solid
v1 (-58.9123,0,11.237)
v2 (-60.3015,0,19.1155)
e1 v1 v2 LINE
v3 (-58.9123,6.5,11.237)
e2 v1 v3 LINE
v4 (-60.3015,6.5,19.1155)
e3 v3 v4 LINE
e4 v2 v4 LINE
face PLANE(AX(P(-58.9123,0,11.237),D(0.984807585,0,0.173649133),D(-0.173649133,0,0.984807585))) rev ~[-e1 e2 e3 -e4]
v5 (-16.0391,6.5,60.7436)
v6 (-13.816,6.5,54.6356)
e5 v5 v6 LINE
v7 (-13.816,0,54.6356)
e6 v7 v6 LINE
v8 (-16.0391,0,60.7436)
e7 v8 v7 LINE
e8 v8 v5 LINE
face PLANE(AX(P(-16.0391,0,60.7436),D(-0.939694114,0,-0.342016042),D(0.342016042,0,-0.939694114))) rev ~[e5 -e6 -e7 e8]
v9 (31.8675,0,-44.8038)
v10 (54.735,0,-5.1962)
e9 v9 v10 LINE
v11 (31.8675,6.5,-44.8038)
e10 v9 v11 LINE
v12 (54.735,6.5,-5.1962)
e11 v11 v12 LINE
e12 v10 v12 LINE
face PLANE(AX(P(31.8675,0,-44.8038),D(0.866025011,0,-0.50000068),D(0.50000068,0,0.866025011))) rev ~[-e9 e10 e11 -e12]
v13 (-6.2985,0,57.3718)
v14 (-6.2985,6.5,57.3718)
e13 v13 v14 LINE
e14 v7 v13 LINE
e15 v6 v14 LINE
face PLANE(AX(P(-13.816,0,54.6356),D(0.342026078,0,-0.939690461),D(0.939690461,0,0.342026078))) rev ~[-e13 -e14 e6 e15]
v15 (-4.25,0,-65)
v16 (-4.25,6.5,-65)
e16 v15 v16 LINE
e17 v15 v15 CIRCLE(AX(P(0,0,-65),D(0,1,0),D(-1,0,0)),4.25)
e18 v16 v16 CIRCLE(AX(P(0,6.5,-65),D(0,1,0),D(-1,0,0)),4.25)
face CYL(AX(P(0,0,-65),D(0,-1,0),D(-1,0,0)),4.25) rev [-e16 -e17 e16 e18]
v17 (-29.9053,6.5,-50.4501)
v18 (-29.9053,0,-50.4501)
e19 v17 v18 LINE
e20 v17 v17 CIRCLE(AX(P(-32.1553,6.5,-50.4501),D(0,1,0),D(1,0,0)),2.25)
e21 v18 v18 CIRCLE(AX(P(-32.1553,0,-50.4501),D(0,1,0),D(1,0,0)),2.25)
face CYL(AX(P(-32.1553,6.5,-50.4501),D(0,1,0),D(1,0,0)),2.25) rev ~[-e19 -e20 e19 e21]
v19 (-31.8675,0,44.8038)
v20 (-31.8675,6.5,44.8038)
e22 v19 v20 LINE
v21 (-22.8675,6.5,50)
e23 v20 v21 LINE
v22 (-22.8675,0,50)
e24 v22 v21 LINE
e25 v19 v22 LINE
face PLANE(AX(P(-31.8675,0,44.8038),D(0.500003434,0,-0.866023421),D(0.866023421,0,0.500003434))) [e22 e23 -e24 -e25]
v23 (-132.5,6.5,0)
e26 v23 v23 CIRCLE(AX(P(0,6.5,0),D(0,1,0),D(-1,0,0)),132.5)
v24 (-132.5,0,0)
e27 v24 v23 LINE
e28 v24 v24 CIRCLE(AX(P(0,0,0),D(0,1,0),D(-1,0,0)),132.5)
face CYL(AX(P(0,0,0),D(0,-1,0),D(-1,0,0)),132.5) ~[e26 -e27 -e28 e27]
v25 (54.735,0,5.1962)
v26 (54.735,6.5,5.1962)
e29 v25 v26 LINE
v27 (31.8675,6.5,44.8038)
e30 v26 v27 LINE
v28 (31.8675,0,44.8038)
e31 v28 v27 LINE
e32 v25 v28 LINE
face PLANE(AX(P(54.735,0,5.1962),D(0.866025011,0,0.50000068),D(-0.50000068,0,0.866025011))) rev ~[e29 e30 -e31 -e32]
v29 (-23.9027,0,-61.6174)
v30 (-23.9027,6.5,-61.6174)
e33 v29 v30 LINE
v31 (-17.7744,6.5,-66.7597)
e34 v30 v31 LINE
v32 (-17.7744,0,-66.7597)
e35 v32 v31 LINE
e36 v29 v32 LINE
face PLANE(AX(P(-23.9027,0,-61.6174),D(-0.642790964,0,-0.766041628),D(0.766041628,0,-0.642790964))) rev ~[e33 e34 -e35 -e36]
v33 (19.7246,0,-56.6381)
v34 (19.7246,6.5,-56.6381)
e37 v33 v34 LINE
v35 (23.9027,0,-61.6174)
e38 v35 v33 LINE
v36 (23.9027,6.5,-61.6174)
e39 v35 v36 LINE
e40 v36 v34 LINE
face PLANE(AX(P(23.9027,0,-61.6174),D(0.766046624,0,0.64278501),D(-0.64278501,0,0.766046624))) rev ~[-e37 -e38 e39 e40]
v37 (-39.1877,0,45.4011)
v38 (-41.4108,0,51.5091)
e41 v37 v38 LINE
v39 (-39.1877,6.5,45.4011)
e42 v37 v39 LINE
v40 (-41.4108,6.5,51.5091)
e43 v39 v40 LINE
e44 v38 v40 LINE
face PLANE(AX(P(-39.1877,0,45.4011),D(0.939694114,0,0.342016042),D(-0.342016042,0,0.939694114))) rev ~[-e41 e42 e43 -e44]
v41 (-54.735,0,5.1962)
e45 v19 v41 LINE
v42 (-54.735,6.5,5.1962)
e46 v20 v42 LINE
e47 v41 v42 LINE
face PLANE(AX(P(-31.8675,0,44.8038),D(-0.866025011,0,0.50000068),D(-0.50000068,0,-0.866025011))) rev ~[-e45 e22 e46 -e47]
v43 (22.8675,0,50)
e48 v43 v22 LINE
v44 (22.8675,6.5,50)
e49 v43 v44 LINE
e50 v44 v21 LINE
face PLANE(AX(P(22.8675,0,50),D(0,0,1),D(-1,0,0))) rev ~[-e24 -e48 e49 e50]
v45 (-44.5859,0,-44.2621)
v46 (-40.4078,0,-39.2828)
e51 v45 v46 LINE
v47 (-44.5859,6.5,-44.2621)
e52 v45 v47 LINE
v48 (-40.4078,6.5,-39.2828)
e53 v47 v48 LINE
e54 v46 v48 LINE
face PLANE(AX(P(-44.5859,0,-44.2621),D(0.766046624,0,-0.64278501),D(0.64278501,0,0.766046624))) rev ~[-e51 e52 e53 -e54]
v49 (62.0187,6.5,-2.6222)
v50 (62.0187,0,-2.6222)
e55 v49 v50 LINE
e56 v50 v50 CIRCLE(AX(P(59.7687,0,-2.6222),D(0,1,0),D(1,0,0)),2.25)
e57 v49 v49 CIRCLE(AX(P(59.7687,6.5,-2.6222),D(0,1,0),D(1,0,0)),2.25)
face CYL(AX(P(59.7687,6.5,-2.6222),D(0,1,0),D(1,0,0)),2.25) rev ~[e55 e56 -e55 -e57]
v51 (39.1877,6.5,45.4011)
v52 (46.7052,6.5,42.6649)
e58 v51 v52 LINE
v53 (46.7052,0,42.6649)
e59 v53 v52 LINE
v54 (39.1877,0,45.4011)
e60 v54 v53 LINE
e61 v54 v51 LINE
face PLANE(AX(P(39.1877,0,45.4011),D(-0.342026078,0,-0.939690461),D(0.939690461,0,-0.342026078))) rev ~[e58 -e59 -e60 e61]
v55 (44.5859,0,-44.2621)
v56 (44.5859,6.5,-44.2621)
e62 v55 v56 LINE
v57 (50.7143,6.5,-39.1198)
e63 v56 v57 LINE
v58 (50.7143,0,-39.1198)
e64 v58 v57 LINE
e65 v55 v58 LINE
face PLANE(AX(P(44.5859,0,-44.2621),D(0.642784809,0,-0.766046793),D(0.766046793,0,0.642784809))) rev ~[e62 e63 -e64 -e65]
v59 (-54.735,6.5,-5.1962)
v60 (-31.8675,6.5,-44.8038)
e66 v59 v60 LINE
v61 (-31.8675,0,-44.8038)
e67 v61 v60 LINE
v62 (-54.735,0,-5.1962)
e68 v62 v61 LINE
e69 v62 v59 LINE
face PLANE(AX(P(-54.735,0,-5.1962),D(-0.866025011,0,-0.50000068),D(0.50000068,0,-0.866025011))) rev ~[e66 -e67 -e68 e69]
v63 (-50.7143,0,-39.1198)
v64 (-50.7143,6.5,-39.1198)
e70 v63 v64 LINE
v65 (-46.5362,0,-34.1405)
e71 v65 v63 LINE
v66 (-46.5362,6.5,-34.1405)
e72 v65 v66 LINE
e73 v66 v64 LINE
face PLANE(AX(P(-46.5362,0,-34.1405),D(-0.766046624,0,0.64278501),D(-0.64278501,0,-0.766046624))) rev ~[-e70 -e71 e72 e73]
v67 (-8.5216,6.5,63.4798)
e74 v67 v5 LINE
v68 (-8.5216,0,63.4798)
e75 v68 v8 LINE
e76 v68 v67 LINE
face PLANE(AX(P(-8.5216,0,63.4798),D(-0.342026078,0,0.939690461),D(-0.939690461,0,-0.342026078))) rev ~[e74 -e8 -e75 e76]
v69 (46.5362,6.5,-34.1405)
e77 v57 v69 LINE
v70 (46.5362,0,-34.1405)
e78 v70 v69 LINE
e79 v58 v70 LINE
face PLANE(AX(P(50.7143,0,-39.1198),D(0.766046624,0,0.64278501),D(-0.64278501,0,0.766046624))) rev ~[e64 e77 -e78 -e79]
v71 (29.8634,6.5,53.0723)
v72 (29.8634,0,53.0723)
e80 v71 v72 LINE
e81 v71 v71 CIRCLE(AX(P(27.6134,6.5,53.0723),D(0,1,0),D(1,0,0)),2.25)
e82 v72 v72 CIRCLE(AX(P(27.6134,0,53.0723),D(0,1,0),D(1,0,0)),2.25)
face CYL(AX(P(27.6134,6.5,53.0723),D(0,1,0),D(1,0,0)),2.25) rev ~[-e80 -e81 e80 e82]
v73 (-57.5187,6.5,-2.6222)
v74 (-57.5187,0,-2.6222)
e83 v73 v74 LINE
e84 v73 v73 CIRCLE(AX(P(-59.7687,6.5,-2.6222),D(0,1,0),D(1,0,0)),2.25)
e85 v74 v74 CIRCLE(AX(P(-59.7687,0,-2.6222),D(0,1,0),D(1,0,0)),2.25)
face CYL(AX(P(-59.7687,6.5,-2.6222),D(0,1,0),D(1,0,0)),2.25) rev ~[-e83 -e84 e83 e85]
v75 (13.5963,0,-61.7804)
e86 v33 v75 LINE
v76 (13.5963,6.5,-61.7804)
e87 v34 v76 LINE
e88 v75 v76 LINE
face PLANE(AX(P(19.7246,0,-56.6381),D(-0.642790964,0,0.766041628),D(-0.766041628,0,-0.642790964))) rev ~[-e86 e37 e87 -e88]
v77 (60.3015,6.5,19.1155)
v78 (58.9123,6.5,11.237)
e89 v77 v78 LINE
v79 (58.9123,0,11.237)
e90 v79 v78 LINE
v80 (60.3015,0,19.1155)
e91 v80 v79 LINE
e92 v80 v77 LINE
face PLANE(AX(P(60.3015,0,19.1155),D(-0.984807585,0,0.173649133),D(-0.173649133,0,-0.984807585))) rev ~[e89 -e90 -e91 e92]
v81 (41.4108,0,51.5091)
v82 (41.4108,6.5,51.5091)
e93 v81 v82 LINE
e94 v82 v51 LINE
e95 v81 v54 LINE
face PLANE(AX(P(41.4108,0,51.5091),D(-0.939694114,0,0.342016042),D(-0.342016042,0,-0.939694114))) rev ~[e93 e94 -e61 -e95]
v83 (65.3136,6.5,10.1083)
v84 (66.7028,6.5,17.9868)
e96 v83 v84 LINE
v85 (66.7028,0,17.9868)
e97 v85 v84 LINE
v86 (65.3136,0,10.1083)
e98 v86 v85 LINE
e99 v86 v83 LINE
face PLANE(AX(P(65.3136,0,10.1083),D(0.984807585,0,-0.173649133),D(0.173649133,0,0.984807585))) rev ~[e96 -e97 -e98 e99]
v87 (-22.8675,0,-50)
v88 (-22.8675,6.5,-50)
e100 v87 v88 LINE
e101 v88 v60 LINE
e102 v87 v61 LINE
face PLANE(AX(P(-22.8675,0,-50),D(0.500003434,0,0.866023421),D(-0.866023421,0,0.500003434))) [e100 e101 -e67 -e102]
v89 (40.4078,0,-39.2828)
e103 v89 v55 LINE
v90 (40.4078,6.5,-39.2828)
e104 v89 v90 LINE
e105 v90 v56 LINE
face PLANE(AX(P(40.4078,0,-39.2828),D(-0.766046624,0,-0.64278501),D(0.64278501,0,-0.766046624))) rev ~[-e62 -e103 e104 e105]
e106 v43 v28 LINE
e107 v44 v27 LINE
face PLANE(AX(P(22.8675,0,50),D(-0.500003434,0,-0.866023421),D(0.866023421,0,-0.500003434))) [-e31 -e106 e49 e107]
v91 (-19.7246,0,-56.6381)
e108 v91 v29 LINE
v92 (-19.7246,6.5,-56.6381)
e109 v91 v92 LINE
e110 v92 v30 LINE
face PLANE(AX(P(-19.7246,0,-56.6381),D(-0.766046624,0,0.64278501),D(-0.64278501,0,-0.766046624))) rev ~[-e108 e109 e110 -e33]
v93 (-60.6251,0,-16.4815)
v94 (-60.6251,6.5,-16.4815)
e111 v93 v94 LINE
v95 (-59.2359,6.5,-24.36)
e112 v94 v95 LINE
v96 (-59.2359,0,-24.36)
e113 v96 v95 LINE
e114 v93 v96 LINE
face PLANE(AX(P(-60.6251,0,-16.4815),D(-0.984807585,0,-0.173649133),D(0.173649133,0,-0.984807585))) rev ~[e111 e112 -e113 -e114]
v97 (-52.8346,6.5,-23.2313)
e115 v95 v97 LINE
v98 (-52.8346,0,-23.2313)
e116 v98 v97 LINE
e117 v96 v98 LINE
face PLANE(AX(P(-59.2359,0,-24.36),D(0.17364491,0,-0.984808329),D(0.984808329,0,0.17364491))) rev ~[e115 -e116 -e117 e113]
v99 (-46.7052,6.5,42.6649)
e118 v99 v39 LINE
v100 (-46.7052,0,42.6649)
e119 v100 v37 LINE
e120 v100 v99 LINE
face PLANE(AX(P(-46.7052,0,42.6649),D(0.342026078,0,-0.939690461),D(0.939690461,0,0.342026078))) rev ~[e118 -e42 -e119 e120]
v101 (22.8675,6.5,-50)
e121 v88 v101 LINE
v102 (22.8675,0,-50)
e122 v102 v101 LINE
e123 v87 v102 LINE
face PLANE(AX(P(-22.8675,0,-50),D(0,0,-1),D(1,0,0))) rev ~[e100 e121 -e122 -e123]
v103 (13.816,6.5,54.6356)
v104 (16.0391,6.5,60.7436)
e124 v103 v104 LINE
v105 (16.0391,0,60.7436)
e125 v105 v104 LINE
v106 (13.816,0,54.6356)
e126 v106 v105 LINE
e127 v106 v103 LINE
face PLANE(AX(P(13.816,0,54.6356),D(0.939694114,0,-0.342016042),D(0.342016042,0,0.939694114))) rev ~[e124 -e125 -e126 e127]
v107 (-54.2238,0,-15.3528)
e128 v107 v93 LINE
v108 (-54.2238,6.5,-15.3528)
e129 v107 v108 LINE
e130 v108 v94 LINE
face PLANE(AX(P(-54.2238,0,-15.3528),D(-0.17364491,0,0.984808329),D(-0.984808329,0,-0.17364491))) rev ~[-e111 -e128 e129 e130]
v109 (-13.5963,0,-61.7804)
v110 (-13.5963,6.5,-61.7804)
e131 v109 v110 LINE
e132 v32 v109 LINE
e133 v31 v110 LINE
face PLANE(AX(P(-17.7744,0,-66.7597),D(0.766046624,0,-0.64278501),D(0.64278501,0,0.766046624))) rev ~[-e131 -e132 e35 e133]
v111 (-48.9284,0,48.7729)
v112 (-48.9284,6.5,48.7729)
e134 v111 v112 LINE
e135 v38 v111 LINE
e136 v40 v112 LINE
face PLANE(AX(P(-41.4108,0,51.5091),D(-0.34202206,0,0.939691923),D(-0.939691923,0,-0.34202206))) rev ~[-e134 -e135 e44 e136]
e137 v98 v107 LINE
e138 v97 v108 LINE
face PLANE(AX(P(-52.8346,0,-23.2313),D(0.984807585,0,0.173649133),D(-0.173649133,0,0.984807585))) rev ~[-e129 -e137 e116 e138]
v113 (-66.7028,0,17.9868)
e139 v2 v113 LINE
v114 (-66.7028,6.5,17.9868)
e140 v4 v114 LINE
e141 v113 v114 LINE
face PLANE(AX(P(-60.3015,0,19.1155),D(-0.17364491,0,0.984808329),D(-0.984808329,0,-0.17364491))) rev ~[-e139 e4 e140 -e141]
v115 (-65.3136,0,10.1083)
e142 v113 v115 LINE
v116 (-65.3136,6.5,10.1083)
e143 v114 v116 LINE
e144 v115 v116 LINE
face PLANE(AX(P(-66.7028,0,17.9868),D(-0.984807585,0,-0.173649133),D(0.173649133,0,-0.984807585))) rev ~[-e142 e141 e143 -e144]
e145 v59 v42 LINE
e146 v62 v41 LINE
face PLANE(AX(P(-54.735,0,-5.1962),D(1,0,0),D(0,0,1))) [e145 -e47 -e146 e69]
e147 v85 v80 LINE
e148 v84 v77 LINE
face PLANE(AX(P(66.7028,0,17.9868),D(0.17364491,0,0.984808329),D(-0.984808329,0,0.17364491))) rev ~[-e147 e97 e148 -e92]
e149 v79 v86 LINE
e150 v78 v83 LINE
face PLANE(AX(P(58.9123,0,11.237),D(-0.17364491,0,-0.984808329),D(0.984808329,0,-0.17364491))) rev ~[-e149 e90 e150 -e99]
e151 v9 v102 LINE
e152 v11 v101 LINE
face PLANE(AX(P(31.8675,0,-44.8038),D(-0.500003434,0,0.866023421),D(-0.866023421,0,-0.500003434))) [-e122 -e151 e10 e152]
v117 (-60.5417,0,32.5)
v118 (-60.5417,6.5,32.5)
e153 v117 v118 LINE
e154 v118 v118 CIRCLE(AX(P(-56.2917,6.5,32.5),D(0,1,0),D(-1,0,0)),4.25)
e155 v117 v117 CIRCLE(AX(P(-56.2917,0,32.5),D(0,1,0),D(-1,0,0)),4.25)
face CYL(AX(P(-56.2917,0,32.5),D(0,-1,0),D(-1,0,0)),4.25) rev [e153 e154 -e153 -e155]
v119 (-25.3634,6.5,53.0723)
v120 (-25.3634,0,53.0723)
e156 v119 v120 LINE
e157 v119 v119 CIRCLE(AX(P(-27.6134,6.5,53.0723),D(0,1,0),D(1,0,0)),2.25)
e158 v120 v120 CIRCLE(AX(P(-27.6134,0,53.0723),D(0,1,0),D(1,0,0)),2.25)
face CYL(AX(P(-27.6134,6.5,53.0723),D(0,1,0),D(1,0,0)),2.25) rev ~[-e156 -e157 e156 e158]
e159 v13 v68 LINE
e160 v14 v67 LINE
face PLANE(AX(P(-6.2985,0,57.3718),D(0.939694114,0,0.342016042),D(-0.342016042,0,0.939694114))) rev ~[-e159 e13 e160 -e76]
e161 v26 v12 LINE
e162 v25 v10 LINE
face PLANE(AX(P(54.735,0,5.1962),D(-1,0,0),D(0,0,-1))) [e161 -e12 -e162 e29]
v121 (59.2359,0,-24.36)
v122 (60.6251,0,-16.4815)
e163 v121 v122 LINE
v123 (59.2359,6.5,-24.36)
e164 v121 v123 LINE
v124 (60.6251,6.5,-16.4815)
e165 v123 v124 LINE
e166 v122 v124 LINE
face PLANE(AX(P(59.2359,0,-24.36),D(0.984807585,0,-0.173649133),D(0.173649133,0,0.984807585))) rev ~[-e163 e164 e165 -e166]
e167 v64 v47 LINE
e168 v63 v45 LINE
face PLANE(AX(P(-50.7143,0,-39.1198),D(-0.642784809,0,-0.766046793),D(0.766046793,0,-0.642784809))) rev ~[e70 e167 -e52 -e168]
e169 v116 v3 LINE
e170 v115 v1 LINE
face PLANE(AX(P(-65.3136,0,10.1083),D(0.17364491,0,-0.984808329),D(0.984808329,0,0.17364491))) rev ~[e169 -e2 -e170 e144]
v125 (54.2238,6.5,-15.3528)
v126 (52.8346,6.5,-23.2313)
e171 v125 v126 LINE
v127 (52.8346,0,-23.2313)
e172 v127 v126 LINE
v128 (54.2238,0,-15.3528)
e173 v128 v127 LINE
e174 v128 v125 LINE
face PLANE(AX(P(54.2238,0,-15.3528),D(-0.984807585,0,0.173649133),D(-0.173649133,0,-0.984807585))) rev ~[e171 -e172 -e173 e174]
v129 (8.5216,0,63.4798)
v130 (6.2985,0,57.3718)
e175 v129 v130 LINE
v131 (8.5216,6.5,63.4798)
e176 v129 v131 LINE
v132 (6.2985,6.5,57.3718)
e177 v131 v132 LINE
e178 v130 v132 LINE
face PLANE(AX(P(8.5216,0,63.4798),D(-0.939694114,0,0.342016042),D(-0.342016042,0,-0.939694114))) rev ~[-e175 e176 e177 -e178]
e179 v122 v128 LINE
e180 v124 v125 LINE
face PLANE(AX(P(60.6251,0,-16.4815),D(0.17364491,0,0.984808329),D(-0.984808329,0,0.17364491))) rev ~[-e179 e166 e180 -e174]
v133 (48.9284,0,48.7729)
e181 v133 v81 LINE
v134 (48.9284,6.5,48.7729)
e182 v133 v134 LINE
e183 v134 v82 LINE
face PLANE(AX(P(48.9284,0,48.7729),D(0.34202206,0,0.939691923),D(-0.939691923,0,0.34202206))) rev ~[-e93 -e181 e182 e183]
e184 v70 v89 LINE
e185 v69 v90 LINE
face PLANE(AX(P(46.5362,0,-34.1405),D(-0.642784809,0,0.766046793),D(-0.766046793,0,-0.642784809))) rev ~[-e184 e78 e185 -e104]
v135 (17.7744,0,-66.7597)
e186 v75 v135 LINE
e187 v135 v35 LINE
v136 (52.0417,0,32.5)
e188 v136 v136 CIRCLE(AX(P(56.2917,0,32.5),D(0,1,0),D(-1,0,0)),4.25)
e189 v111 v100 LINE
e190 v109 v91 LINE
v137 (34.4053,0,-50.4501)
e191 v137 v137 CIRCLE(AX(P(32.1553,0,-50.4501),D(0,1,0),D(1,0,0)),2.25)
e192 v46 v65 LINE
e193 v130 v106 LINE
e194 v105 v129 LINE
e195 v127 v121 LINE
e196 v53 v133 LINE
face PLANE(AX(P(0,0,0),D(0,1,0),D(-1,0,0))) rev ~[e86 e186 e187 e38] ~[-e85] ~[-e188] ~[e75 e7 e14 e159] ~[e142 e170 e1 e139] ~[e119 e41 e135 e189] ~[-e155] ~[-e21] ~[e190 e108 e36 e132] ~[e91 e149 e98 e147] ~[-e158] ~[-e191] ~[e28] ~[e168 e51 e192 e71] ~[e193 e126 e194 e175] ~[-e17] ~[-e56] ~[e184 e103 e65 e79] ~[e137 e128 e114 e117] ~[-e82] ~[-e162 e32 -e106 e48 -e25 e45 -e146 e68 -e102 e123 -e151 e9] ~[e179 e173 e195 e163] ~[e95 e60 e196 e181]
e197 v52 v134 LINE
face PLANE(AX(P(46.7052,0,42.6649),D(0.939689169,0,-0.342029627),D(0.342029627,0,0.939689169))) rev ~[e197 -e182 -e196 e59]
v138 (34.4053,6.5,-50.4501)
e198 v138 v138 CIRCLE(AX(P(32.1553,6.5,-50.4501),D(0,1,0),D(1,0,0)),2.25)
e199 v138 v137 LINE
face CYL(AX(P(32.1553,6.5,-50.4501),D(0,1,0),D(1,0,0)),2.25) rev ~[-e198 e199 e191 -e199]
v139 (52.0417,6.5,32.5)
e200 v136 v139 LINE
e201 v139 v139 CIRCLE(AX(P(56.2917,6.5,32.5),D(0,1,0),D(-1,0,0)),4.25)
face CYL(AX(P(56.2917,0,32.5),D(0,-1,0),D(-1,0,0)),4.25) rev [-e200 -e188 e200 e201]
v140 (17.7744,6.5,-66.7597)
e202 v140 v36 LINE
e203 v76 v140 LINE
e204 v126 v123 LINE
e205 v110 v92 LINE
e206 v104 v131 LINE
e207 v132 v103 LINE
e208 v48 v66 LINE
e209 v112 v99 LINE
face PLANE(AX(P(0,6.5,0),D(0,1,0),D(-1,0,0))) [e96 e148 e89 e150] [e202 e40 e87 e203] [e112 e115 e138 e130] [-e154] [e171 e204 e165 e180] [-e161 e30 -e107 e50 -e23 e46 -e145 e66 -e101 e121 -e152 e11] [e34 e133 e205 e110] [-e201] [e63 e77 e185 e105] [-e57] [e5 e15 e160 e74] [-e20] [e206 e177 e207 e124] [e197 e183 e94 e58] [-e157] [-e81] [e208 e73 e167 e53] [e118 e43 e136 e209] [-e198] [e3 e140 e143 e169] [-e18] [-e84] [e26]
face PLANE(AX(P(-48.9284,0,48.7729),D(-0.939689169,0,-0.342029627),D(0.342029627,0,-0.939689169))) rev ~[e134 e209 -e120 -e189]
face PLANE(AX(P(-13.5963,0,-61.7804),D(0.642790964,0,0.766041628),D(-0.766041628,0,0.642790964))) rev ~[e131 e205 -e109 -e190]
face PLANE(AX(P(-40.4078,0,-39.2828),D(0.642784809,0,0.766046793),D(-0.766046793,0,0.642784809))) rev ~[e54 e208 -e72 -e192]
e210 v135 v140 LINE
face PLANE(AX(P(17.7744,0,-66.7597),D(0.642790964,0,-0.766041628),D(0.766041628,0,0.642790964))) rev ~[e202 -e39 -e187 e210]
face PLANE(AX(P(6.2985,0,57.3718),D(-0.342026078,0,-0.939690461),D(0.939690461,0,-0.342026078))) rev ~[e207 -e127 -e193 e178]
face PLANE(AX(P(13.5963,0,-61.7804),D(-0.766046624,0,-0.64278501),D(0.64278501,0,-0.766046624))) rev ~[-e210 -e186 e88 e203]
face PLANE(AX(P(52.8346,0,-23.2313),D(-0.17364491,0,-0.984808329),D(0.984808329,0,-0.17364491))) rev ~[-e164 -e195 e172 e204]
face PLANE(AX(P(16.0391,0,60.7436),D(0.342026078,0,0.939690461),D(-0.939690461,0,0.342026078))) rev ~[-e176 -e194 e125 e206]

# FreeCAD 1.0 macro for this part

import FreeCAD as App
import Part
import Sketcher

V = App.Vector
Q = App.Units.Quantity

doc = App.newDocument("Part")
params = doc.addObject("Spreadsheet::Sheet", "Params")
for row, (alias, value) in enumerate([
    ("sketch1_diameter", "265 mm"),
    ("sketch1_diameter2", "8.5 mm"),
    ("sketch1_length", "8 mm"),
    ("sketch1_length2", "6.5 mm"),
    ("pad1_length", "6.5 mm"),
    ("sketch2_diameter", "4.5 mm"),
], start=1):
    params.set(f"A{row}", alias)
    params.set(f"B{row}", "=" + value)
    params.setAlias(f"B{row}", alias)

body = doc.addObject("PartDesign::Body", "Body")

# Sketch on XZ plane
sketch1 = body.newObject("Sketcher::SketchObject", "Sketch")
sketch1.AttachmentSupport = (doc.getObject("XZ_Plane"), [""])
sketch1.MapMode = "FlatFace"
sketch1.addGeometry(Part.Circle(V(0, 0, 0), V(0, 0, 1), 132.5), False)
sketch1.addGeometry(Part.LineSegment(V(50.7143, -39.1198, 0), V(46.5362, -34.1405, 0)), False)
sketch1.addGeometry(Part.LineSegment(V(46.5362, -34.1405, 0), V(40.4078, -39.2828, 0)), False)
sketch1.addGeometry(Part.LineSegment(V(40.4078, -39.2828, 0), V(44.5859, -44.2621, 0)), False)
sketch1.addGeometry(Part.LineSegment(V(44.5859, -44.2621, 0), V(50.7143, -39.1198, 0)), False)
sketch1.addGeometry(Part.LineSegment(V(23.9027, -61.6174, 0), V(19.7246, -56.6381, 0)), False)
sketch1.addGeometry(Part.LineSegment(V(19.7246, -56.6381, 0), V(13.5963, -61.7804, 0)), False)
sketch1.addGeometry(Part.LineSegment(V(13.5963, -61.7804, 0), V(17.7744, -66.7597, 0)), False)
sketch1.addGeometry(Part.LineSegment(V(17.7744, -66.7597, 0), V(23.9027, -61.6174, 0)), False)
sketch1.addGeometry(Part.LineSegment(V(60.6251, -16.4815, 0), V(54.2238, -15.3528, 0)), False)
sketch1.addGeometry(Part.LineSegment(V(54.2238, -15.3528, 0), V(52.8346, -23.2313, 0)), False)
sketch1.addGeometry(Part.LineSegment(V(52.8346, -23.2313, 0), V(59.2359, -24.36, 0)), False)
sketch1.addGeometry(Part.LineSegment(V(59.2359, -24.36, 0), V(60.6251, -16.4815, 0)), False)
sketch1.addGeometry(Part.Circle(V(0, -65, 0), V(0, 0, 1), 4.25), False)
sketch1.addGeometry(Part.LineSegment(V(-19.7246, -56.6381, 0), V(-23.9027, -61.6174, 0)), False)
sketch1.addGeometry(Part.LineSegment(V(-23.9027, -61.6174, 0), V(-17.7744, -66.7597, 0)), False)
sketch1.addGeometry(Part.LineSegment(V(-17.7744, -66.7597, 0), V(-13.5963, -61.7804, 0)), False)
sketch1.addGeometry(Part.LineSegment(V(-13.5963, -61.7804, 0), V(-19.7246, -56.6381, 0)), False)
sketch1.addGeometry(Part.LineSegment(V(-46.5362, -34.1405, 0), V(-50.7143, -39.1198, 0)), False)
sketch1.addGeometry(Part.LineSegment(V(-50.7143, -39.1198, 0), V(-44.5859, -44.2621, 0)), False)
sketch1.addGeometry(Part.LineSegment(V(-44.5859, -44.2621, 0), V(-40.4078, -39.2828, 0)), False)
sketch1.addGeometry(Part.LineSegment(V(-40.4078, -39.2828, 0), V(-46.5362, -34.1405, 0)), False)
sketch1.addGeometry(Part.LineSegment(V(-54.2238, -15.3528, 0), V(-60.6251, -16.4815, 0)), False)
sketch1.addGeometry(Part.LineSegment(V(-60.6251, -16.4815, 0), V(-59.2359, -24.36, 0)), False)
sketch1.addGeometry(Part.LineSegment(V(-59.2359, -24.36, 0), V(-52.8346, -23.2313, 0)), False)
sketch1.addGeometry(Part.LineSegment(V(-52.8346, -23.2313, 0), V(-54.2238, -15.3528, 0)), False)
sketch1.addGeometry(Part.LineSegment(V(66.7028, 17.9868, 0), V(60.3015, 19.1155, 0)), False)
sketch1.addGeometry(Part.LineSegment(V(60.3015, 19.1155, 0), V(58.9123, 11.237, 0)), False)
sketch1.addGeometry(Part.LineSegment(V(58.9123, 11.237, 0), V(65.3136, 10.1083, 0)), False)
sketch1.addGeometry(Part.LineSegment(V(65.3136, 10.1083, 0), V(66.7028, 17.9868, 0)), False)
sketch1.addGeometry(Part.Circle(V(56.2917, 32.5, 0), V(0, 0, 1), 4.25), False)
sketch1.addGeometry(Part.LineSegment(V(46.7052, 42.6649, 0), V(48.9284, 48.7729, 0)), False)
sketch1.addGeometry(Part.LineSegment(V(48.9284, 48.7729, 0), V(41.4108, 51.5091, 0)), False)
sketch1.addGeometry(Part.LineSegment(V(41.4108, 51.5091, 0), V(39.1877, 45.4011, 0)), False)
sketch1.addGeometry(Part.LineSegment(V(39.1877, 45.4011, 0), V(46.7052, 42.6649, 0)), False)
sketch1.addGeometry(Part.LineSegment(V(13.816, 54.6356, 0), V(16.0391, 60.7436, 0)), False)
sketch1.addGeometry(Part.LineSegment(V(16.0391, 60.7436, 0), V(8.5216, 63.4798, 0)), False)
sketch1.addGeometry(Part.LineSegment(V(8.5216, 63.4798, 0), V(6.2985, 57.3718, 0)), False)
sketch1.addGeometry(Part.LineSegment(V(6.2985, 57.3718, 0), V(13.816, 54.6356, 0)), False)
sketch1.addGeometry(Part.LineSegment(V(31.8675, 44.8038, 0), V(22.8675, 50, 0)), False)
sketch1.addGeometry(Part.LineSegment(V(22.8675, 50, 0), V(-22.8675, 50, 0)), False)
sketch1.addGeometry(Part.LineSegment(V(-22.8675, 50, 0), V(-31.8675, 44.8038, 0)), False)
sketch1.addGeometry(Part.LineSegment(V(-31.8675, 44.8038, 0), V(-54.735, 5.1962, 0)), False)
sketch1.addGeometry(Part.LineSegment(V(-54.735, 5.1962, 0), V(-54.735, -5.1962, 0)), False)
sketch1.addGeometry(Part.LineSegment(V(-54.735, -5.1962, 0), V(-31.8675, -44.8038, 0)), False)
sketch1.addGeometry(Part.LineSegment(V(-31.8675, -44.8038, 0), V(-22.8675, -50, 0)), False)
sketch1.addGeometry(Part.LineSegment(V(-22.8675, -50, 0), V(22.8675, -50, 0)), False)
sketch1.addGeometry(Part.LineSegment(V(22.8675, -50, 0), V(31.8675, -44.8038, 0)), False)
sketch1.addGeometry(Part.LineSegment(V(31.8675, -44.8038, 0), V(54.735, -5.1962, 0)), False)
sketch1.addGeometry(Part.LineSegment(V(54.735, -5.1962, 0), V(54.735, 5.1962, 0)), False)
sketch1.addGeometry(Part.LineSegment(V(54.735, 5.1962, 0), V(31.8675, 44.8038, 0)), False)
sketch1.addGeometry(Part.LineSegment(V(-60.3015, 19.1155, 0), V(-66.7028, 17.9868, 0)), False)
sketch1.addGeometry(Part.LineSegment(V(-66.7028, 17.9868, 0), V(-65.3136, 10.1083, 0)), False)
sketch1.addGeometry(Part.LineSegment(V(-65.3136, 10.1083, 0), V(-58.9123, 11.237, 0)), False)
sketch1.addGeometry(Part.LineSegment(V(-58.9123, 11.237, 0), V(-60.3015, 19.1155, 0)), False)
sketch1.addGeometry(Part.Circle(V(-56.2917, 32.5, 0), V(0, 0, 1), 4.25), False)
sketch1.addGeometry(Part.LineSegment(V(-6.2985, 57.3718, 0), V(-8.5216, 63.4798, 0)), False)
sketch1.addGeometry(Part.LineSegment(V(-8.5216, 63.4798, 0), V(-16.0391, 60.7436, 0)), False)
sketch1.addGeometry(Part.LineSegment(V(-16.0391, 60.7436, 0), V(-13.816, 54.6356, 0)), False)
sketch1.addGeometry(Part.LineSegment(V(-13.816, 54.6356, 0), V(-6.2985, 57.3718, 0)), False)
sketch1.addGeometry(Part.LineSegment(V(-39.1877, 45.4011, 0), V(-41.4108, 51.5091, 0)), False)
sketch1.addGeometry(Part.LineSegment(V(-41.4108, 51.5091, 0), V(-48.9284, 48.7729, 0)), False)
sketch1.addGeometry(Part.LineSegment(V(-48.9284, 48.7729, 0), V(-46.7052, 42.6649, 0)), False)
sketch1.addGeometry(Part.LineSegment(V(-46.7052, 42.6649, 0), V(-39.1877, 45.4011, 0)), False)
sketch1.addConstraint(Sketcher.Constraint("Coincident", 1, 2, 2, 1))
sketch1.addConstraint(Sketcher.Constraint("Coincident", 2, 2, 3, 1))
sketch1.addConstraint(Sketcher.Constraint("Coincident", 3, 2, 4, 1))
sketch1.addConstraint(Sketcher.Constraint("Coincident", 4, 2, 1, 1))
sketch1.addConstraint(Sketcher.Constraint("Coincident", 5, 2, 6, 1))
sketch1.addConstraint(Sketcher.Constraint("Coincident", 6, 2, 7, 1))
sketch1.addConstraint(Sketcher.Constraint("Coincident", 7, 2, 8, 1))
sketch1.addConstraint(Sketcher.Constraint("Coincident", 8, 2, 5, 1))
sketch1.addConstraint(Sketcher.Constraint("Coincident", 9, 2, 10, 1))
sketch1.addConstraint(Sketcher.Constraint("Coincident", 10, 2, 11, 1))
sketch1.addConstraint(Sketcher.Constraint("Coincident", 11, 2, 12, 1))
sketch1.addConstraint(Sketcher.Constraint("Coincident", 12, 2, 9, 1))
sketch1.addConstraint(Sketcher.Constraint("Coincident", 14, 2, 15, 1))
sketch1.addConstraint(Sketcher.Constraint("Coincident", 15, 2, 16, 1))
sketch1.addConstraint(Sketcher.Constraint("Coincident", 16, 2, 17, 1))
sketch1.addConstraint(Sketcher.Constraint("Coincident", 17, 2, 14, 1))
sketch1.addConstraint(Sketcher.Constraint("Coincident", 18, 2, 19, 1))
sketch1.addConstraint(Sketcher.Constraint("Coincident", 19, 2, 20, 1))
sketch1.addConstraint(Sketcher.Constraint("Coincident", 20, 2, 21, 1))
sketch1.addConstraint(Sketcher.Constraint("Coincident", 21, 2, 18, 1))
sketch1.addConstraint(Sketcher.Constraint("Coincident", 22, 2, 23, 1))
sketch1.addConstraint(Sketcher.Constraint("Coincident", 23, 2, 24, 1))
sketch1.addConstraint(Sketcher.Constraint("Coincident", 24, 2, 25, 1))
sketch1.addConstraint(Sketcher.Constraint("Coincident", 25, 2, 22, 1))
sketch1.addConstraint(Sketcher.Constraint("Coincident", 26, 2, 27, 1))
sketch1.addConstraint(Sketcher.Constraint("Coincident", 27, 2, 28, 1))
sketch1.addConstraint(Sketcher.Constraint("Coincident", 28, 2, 29, 1))
sketch1.addConstraint(Sketcher.Constraint("Coincident", 29, 2, 26, 1))
sketch1.addConstraint(Sketcher.Constraint("Coincident", 31, 2, 32, 1))
sketch1.addConstraint(Sketcher.Constraint("Coincident", 32, 2, 33, 1))
sketch1.addConstraint(Sketcher.Constraint("Coincident", 33, 2, 34, 1))
sketch1.addConstraint(Sketcher.Constraint("Coincident", 34, 2, 31, 1))
sketch1.addConstraint(Sketcher.Constraint("Coincident", 35, 2, 36, 1))
sketch1.addConstraint(Sketcher.Constraint("Coincident", 36, 2, 37, 1))
sketch1.addConstraint(Sketcher.Constraint("Coincident", 37, 2, 38, 1))
sketch1.addConstraint(Sketcher.Constraint("Coincident", 38, 2, 35, 1))
sketch1.addConstraint(Sketcher.Constraint("Coincident", 39, 2, 40, 1))
sketch1.addConstraint(Sketcher.Constraint("Coincident", 40, 2, 41, 1))
sketch1.addConstraint(Sketcher.Constraint("Coincident", 41, 2, 42, 1))
sketch1.addConstraint(Sketcher.Constraint("Coincident", 42, 2, 43, 1))
sketch1.addConstraint(Sketcher.Constraint("Coincident", 43, 2, 44, 1))
sketch1.addConstraint(Sketcher.Constraint("Coincident", 44, 2, 45, 1))
sketch1.addConstraint(Sketcher.Constraint("Coincident", 45, 2, 46, 1))
sketch1.addConstraint(Sketcher.Constraint("Coincident", 46, 2, 47, 1))
sketch1.addConstraint(Sketcher.Constraint("Coincident", 47, 2, 48, 1))
sketch1.addConstraint(Sketcher.Constraint("Coincident", 48, 2, 49, 1))
sketch1.addConstraint(Sketcher.Constraint("Coincident", 49, 2, 50, 1))
sketch1.addConstraint(Sketcher.Constraint("Coincident", 50, 2, 39, 1))
sketch1.addConstraint(Sketcher.Constraint("Coincident", 51, 2, 52, 1))
sketch1.addConstraint(Sketcher.Constraint("Coincident", 52, 2, 53, 1))
sketch1.addConstraint(Sketcher.Constraint("Coincident", 53, 2, 54, 1))
sketch1.addConstraint(Sketcher.Constraint("Coincident", 54, 2, 51, 1))
sketch1.addConstraint(Sketcher.Constraint("Coincident", 56, 2, 57, 1))
sketch1.addConstraint(Sketcher.Constraint("Coincident", 57, 2, 58, 1))
sketch1.addConstraint(Sketcher.Constraint("Coincident", 58, 2, 59, 1))
sketch1.addConstraint(Sketcher.Constraint("Coincident", 59, 2, 56, 1))
sketch1.addConstraint(Sketcher.Constraint("Coincident", 60, 2, 61, 1))
sketch1.addConstraint(Sketcher.Constraint("Coincident", 61, 2, 62, 1))
sketch1.addConstraint(Sketcher.Constraint("Coincident", 62, 2, 63, 1))
sketch1.addConstraint(Sketcher.Constraint("Coincident", 63, 2, 60, 1))
sketch1.addConstraint(Sketcher.Constraint("Horizontal", 40))
sketch1.addConstraint(Sketcher.Constraint("Vertical", 43))
sketch1.addConstraint(Sketcher.Constraint("Horizontal", 46))
sketch1.addConstraint(Sketcher.Constraint("Vertical", 49))
sketch1.addConstraint(Sketcher.Constraint("Coincident", 0, 3, -1, 1))
sketch1.addConstraint(Sketcher.Constraint("Equal", 13, 30))
sketch1.addConstraint(Sketcher.Constraint("Equal", 30, 55))
sketch1.addConstraint(Sketcher.Constraint("Symmetric", 39, 2, 45, 2, -1, 1))
sketch1.addConstraint(Sketcher.Constraint("Symmetric", 41, 2, 47, 2, -1, 1))
sketch1.addConstraint(Sketcher.Constraint("Symmetric", 42, 2, 48, 2, -1, 1))
sketch1.addConstraint(Sketcher.Constraint("Symmetric", 44, 2, 50, 2, -1, 1))
sketch1.addConstraint(Sketcher.Constraint("Symmetric", 30, 3, 55, 3, -2))
sketch1.addConstraint(Sketcher.Constraint("Symmetric", 8, 2, 14, 2, -2))
sketch1.addConstraint(Sketcher.Constraint("Symmetric", 7, 2, 15, 2, -2))
sketch1.addConstraint(Sketcher.Constraint("Symmetric", 6, 2, 16, 2, -2))
sketch1.addConstraint(Sketcher.Constraint("Symmetric", 5, 2, 17, 2, -2))
sketch1.addConstraint(Sketcher.Constraint("Symmetric", 4, 2, 18, 2, -2))
sketch1.addConstraint(Sketcher.Constraint("Symmetric", 3, 2, 19, 2, -2))
sketch1.addConstraint(Sketcher.Constraint("Symmetric", 2, 2, 20, 2, -2))
sketch1.addConstraint(Sketcher.Constraint("Symmetric", 1, 2, 21, 2, -2))
sketch1.addConstraint(Sketcher.Constraint("Symmetric", 12, 2, 22, 2, -2))
sketch1.addConstraint(Sketcher.Constraint("Symmetric", 11, 2, 23, 2, -2))
sketch1.addConstraint(Sketcher.Constraint("Symmetric", 10, 2, 24, 2, -2))
sketch1.addConstraint(Sketcher.Constraint("Symmetric", 9, 2, 25, 2, -2))
sketch1.addConstraint(Sketcher.Constraint("Symmetric", 44, 2, 47, 2, -2))
sketch1.addConstraint(Sketcher.Constraint("Symmetric", 29, 2, 51, 2, -2))
sketch1.addConstraint(Sketcher.Constraint("Symmetric", 28, 2, 52, 2, -2))
sketch1.addConstraint(Sketcher.Constraint("Symmetric", 27, 2, 53, 2, -2))
sketch1.addConstraint(Sketcher.Constraint("Symmetric", 26, 2, 54, 2, -2))
sketch1.addConstraint(Sketcher.Constraint("Symmetric", 36, 2, 56, 2, -2))
sketch1.addConstraint(Sketcher.Constraint("Symmetric", 35, 2, 57, 2, -2))
sketch1.addConstraint(Sketcher.Constraint("Symmetric", 38, 2, 58, 2, -2))
sketch1.addConstraint(Sketcher.Constraint("Symmetric", 37, 2, 59, 2, -2))
sketch1.addConstraint(Sketcher.Constraint("Symmetric", 32, 2, 60, 2, -2))
sketch1.addConstraint(Sketcher.Constraint("Symmetric", 31, 2, 61, 2, -2))
sketch1.addConstraint(Sketcher.Constraint("Symmetric", 34, 2, 62, 2, -2))
sketch1.addConstraint(Sketcher.Constraint("Symmetric", 33, 2, 63, 2, -2))
sketch1.addConstraint(Sketcher.Constraint("PointOnObject", 13, 3, -2))
sketch1.addConstraint(Sketcher.Constraint("Perpendicular", 1, 2))
sketch1.addConstraint(Sketcher.Constraint("Perpendicular", 2, 3))
sketch1.addConstraint(Sketcher.Constraint("Perpendicular", 3, 4))
sketch1.addConstraint(Sketcher.Constraint("Perpendicular", 4, 5))
sketch1.addConstraint(Sketcher.Constraint("Perpendicular", 5, 6))
sketch1.addConstraint(Sketcher.Constraint("Perpendicular", 6, 7))
sketch1.addConstraint(Sketcher.Constraint("Perpendicular", 7, 8))
sketch1.addConstraint(Sketcher.Constraint("Perpendicular", 9, 10))
sketch1.addConstraint(Sketcher.Constraint("Perpendicular", 10, 11))
sketch1.addConstraint(Sketcher.Constraint("Perpendicular", 11, 12))
sketch1.addConstraint(Sketcher.Constraint("Perpendicular", 12, 26))
sketch1.addConstraint(Sketcher.Constraint("Perpendicular", 26, 27))
sketch1.addConstraint(Sketcher.Constraint("Perpendicular", 27, 28))
sketch1.addConstraint(Sketcher.Constraint("Perpendicular", 28, 29))
sketch1.addConstraint(Sketcher.Constraint("Perpendicular", 31, 32))
sketch1.addConstraint(Sketcher.Constraint("Perpendicular", 32, 33))
sketch1.addConstraint(Sketcher.Constraint("Perpendicular", 33, 34))
sketch1.addConstraint(Sketcher.Constraint("Perpendicular", 34, 35))
sketch1.addConstraint(Sketcher.Constraint("Perpendicular", 35, 36))
sketch1.addConstraint(Sketcher.Constraint("Perpendicular", 36, 37))
sketch1.addConstraint(Sketcher.Constraint("Perpendicular", 37, 38))
sketch1.addConstraint(Sketcher.Constraint("Perpendicular", 39, 42))
sketch1.addConstraint(Sketcher.Constraint("Perpendicular", 41, 44))
sketch1.addConstraint(Sketcher.Constraint("Perpendicular", 44, 47))
sketch1.addConstraint(Sketcher.Constraint("Perpendicular", 47, 50))
sketch1.addConstraint(Sketcher.Constraint("Horizontal", 43, 2, 48, 2))
sketch1.addConstraint(Sketcher.Constraint("Equal", 3, 5))
sketch1.addConstraint(Sketcher.Constraint("Equal", 4, 6))
sketch1.addConstraint(Sketcher.Constraint("Equal", 7, 9))
sketch1.addConstraint(Sketcher.Constraint("Equal", 8, 10))
sketch1.addConstraint(Sketcher.Constraint("Equal", 24, 26))
sketch1.addConstraint(Sketcher.Constraint("Equal", 25, 27))
sketch1.addConstraint(Sketcher.Constraint("Equal", 28, 31))
sketch1.addConstraint(Sketcher.Constraint("Equal", 29, 32))
sketch1.addConstraint(Sketcher.Constraint("Equal", 33, 35))
sketch1.addConstraint(Sketcher.Constraint("Equal", 34, 36))
sketch1.addConstraint(Sketcher.Constraint("Diameter", 0, Q("265 mm")))
sketch1.addConstraint(Sketcher.Constraint("Diameter", 13, Q("8.5 mm")))
sketch1.addConstraint(Sketcher.Constraint("Angle", 3, Q("-50.0002 deg")))
sketch1.addConstraint(Sketcher.Constraint("Angle", 34, Q("-20.0004 deg")))
sketch1.addConstraint(Sketcher.Constraint("Angle", 39, Q("149.9998 deg")))
sketch1.addConstraint(Sketcher.Constraint("Distance", 2, Q("8 mm")))
sketch1.addConstraint(Sketcher.Constraint("DistanceY", 13, 3, -1, 1, Q("65 mm")))
sketch1.addConstraint(Sketcher.Constraint("DistanceY", -1, 1, 39, 2, Q("50 mm")))
sketch1.addConstraint(Sketcher.Constraint("Distance", 1, Q("6.5 mm")))
sketch1.addConstraint(Sketcher.Constraint("Angle", 9, Q("170.0002 deg")))
sketch1.addConstraint(Sketcher.Constraint("DistanceY", -1, 1, 30, 3, Q("32.5 mm")))
sketch1.addConstraint(Sketcher.Constraint("DistanceX", 40, 2, 40, 1, Q("45.735 mm")))
sketch1.addConstraint(Sketcher.Constraint("DistanceY", 11, 2, -1, 1, Q("24.36 mm")))
sketch1.addConstraint(Sketcher.Constraint("Distance", 42, Q("45.735 mm")))
sketch1.addConstraint(Sketcher.Constraint("DistanceY", 43, 2, 43, 1, Q("10.3924 mm")))
sketch1.addConstraint(Sketcher.Constraint("DistanceX", -1, 1, 3, 2, Q("44.586 mm")))
sketch1.addConstraint(Sketcher.Constraint("DistanceY", 3, 2, -1, 1, Q("44.262 mm")))
sketch1.addConstraint(Sketcher.Constraint("DistanceY", 5, 2, -1, 1, Q("56.638 mm")))
sketch1.addConstraint(Sketcher.Constraint("DistanceX", -1, 1, 11, 2, Q("59.236 mm")))
sketch1.addConstraint(Sketcher.Constraint("DistanceY", -1, 1, 27, 2, Q("11.237 mm")))
sketch1.addConstraint(Sketcher.Constraint("DistanceY", -1, 1, 31, 2, Q("48.773 mm")))
sketch1.addConstraint(Sketcher.Constraint("DistanceX", -1, 1, 35, 2, Q("16.039 mm")))
sketch1.addConstraint(Sketcher.Constraint("DistanceX", -1, 1, 30, 3, Q("56.2917 mm")))
sketch1.addConstraint(Sketcher.Constraint("DistanceX", -1, 1, 5, 2, Q("19.7246 mm")))
sketch1.addConstraint(Sketcher.Constraint("DistanceX", -1, 1, 26, 2, Q("60.3015 mm")))
sketch1.addConstraint(Sketcher.Constraint("DistanceX", -1, 1, 31, 2, Q("48.9284 mm")))
sketch1.addConstraint(Sketcher.Constraint("DistanceY", -1, 1, 35, 2, Q("60.7436 mm")))
sketch1.setExpression("Constraints[134]", "Params.sketch1_diameter")
sketch1.setExpression("Constraints[135]", "Params.sketch1_diameter2")
sketch1.setExpression("Constraints[139]", "Params.sketch1_length")
sketch1.setExpression("Constraints[142]", "Params.sketch1_length2")
pad1 = body.newObject("PartDesign::Pad", "Pad")
pad1.Profile = sketch1
pad1.setExpression("Length", "Params.pad1_length")
pad1.Reversed = True

# Sketch on XZ plane
sketch2 = body.newObject("Sketcher::SketchObject", "Sketch001")
sketch2.AttachmentSupport = (doc.getObject("XZ_Plane"), [""])
sketch2.MapMode = "FlatFace"
sketch2.AttachmentOffset = App.Placement(V(0, 0, -6.5), App.Rotation())
sketch2.addGeometry(Part.Circle(V(-59.7687, -2.6222, 0), V(0, 0, 1), 2.25), False)
sketch2.addGeometry(Part.Circle(V(-32.1553, -50.4501, 0), V(0, 0, 1), 2.25), False)
sketch2.addGeometry(Part.Circle(V(32.1553, -50.4501, 0), V(0, 0, 1), 2.25), False)
sketch2.addGeometry(Part.Circle(V(59.7687, -2.6222, 0), V(0, 0, 1), 2.25), False)
sketch2.addGeometry(Part.Circle(V(27.6134, 53.0723, 0), V(0, 0, 1), 2.25), False)
sketch2.addGeometry(Part.Circle(V(-27.6134, 53.0723, 0), V(0, 0, 1), 2.25), False)
sketch2.addConstraint(Sketcher.Constraint("Equal", 0, 1))
sketch2.addConstraint(Sketcher.Constraint("Equal", 1, 2))
sketch2.addConstraint(Sketcher.Constraint("Equal", 2, 3))
sketch2.addConstraint(Sketcher.Constraint("Equal", 3, 4))
sketch2.addConstraint(Sketcher.Constraint("Equal", 4, 5))
sketch2.addConstraint(Sketcher.Constraint("Symmetric", 1, 3, 2, 3, -2))
sketch2.addConstraint(Sketcher.Constraint("Symmetric", 0, 3, 3, 3, -2))
sketch2.addConstraint(Sketcher.Constraint("Symmetric", 4, 3, 5, 3, -2))
sketch2.addConstraint(Sketcher.Constraint("Diameter", 0, Q("4.5 mm")))
sketch2.addConstraint(Sketcher.Constraint("DistanceY", 1, 3, -1, 1, Q("50.45 mm")))
sketch2.addConstraint(Sketcher.Constraint("DistanceY", 1, 3, 0, 3, Q("47.828 mm")))
sketch2.addConstraint(Sketcher.Constraint("DistanceX", 0, 3, 2, 3, Q("91.924 mm")))
sketch2.addConstraint(Sketcher.Constraint("DistanceX", 0, 3, 4, 3, Q("87.382 mm")))
sketch2.addConstraint(Sketcher.Constraint("DistanceX", 0, 3, -1, 1, Q("59.7687 mm")))
sketch2.addConstraint(Sketcher.Constraint("DistanceY", -1, 1, 4, 3, Q("53.0723 mm")))
sketch2.setExpression("Constraints[8]", "Params.sketch2_diameter")
pocket1 = body.newObject("PartDesign::Pocket", "Pocket")
pocket1.Profile = sketch2
pocket1.Type = "ThroughAll"
pocket1.Reversed = True

doc.recompute()
